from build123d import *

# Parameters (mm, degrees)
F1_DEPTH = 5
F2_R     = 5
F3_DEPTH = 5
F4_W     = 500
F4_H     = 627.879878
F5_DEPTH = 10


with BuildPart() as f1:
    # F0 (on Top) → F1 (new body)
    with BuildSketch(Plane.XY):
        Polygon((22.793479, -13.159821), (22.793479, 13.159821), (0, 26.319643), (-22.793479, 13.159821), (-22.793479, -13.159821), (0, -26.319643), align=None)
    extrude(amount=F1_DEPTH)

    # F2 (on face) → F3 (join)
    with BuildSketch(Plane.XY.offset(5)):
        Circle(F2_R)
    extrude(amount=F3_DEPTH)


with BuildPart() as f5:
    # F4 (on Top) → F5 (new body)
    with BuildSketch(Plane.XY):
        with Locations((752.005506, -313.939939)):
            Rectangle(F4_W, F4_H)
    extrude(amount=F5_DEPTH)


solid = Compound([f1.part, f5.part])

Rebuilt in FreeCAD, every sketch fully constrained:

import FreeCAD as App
import Part
import Sketcher
Q = App.Units.Quantity


def add_polygon(sketch, points):
    """Adds a closed chain of lines whose ends are joined by coincident constraints."""
    first, n = sketch.GeometryCount, len(points)
    for a, b in zip(points, points[1:] + points[:1]):
        sketch.addGeometry(Part.LineSegment(App.Vector(*a, 0), App.Vector(*b, 0)), False)
    for i in range(n):
        sketch.addConstraint(Sketcher.Constraint("Coincident", first + i, 2, first + (i + 1) % n, 1))

doc = App.newDocument("Part")
body = doc.addObject("PartDesign::Body", "Body")

# Sketch on XY plane
sketch1 = body.newObject("Sketcher::SketchObject", "Sketch")
sketch1.AttachmentSupport = (doc.getObject("XY_Plane"), [""])
sketch1.MapMode = "FlatFace"
add_polygon(sketch1, [(23, -13), (23, 13), (0, 26), (-23, 13), (-23, -13), (0, -26)])  # lines 0-5
sketch1.addConstraint([
    Sketcher.Constraint("Vertical", 0),
    Sketcher.Constraint("Vertical", 3),
    Sketcher.Constraint("Symmetric", 0, 2, 3, 2, -1, 1),
    Sketcher.Constraint("Symmetric", 1, 2, 4, 2, -1, 1),
    Sketcher.Constraint("PointOnObject", 1, 2, -2),
    Sketcher.Constraint("Parallel", 2, 5),
    Sketcher.Constraint("Horizontal", 0, 2, 2, 2),
    Sketcher.Constraint("Angle", 1, Q("149.999999 deg")),
    Sketcher.Constraint("DistanceY", 0, 1, 0, 2, 26.319642),
    Sketcher.Constraint("DistanceX", -1, 1, 0, 2, 22.793479),
])
pad1 = body.newObject("PartDesign::Pad", "Pad")
pad1.Profile = sketch1
pad1.Length = 5

# Sketch on XY plane
sketch2 = body.newObject("Sketcher::SketchObject", "Sketch001")
sketch2.AttachmentSupport = (doc.getObject("XY_Plane"), [""])
sketch2.MapMode = "FlatFace"
sketch2.AttachmentOffset = App.Placement(App.Vector(0, 0, 5), App.Rotation())
sketch2.addGeometry(Part.Circle(App.Vector(0, 0, 0), App.Vector(0, 0, 1), 5), False)
sketch2.addConstraint([
    Sketcher.Constraint("Coincident", 0, 3, -1, 1),
    Sketcher.Constraint("Diameter", 0, 10.0),
])
pad2 = body.newObject("PartDesign::Pad", "Pad001")
pad2.Profile = sketch2
pad2.Length = 5
body2 = doc.addObject("PartDesign::Body", "Body001")

# Sketch on XY plane
sketch3 = body2.newObject("Sketcher::SketchObject", "Sketch002")
sketch3.AttachmentSupport = (doc.getObject("XY_Plane001"), [""])
sketch3.MapMode = "FlatFace"
add_polygon(sketch3, [(502, 0), (502, -628), (1002, -628), (1002, 0)])  # lines 0-3
sketch3.addConstraint([
    Sketcher.Constraint("Vertical", 0),
    Sketcher.Constraint("Horizontal", 1),
    Sketcher.Constraint("Vertical", 2),
    Sketcher.Constraint("Horizontal", 3),
    Sketcher.Constraint("PointOnObject", 2, 2, -1),
    Sketcher.Constraint("DistanceX", 1, 1, 1, 2, 500.0),
    Sketcher.Constraint("DistanceY", 0, 2, 0, 1, 627.879878),
    Sketcher.Constraint("DistanceX", -1, 1, 0, 2, 502.005506),
])
pad3 = body2.newObject("PartDesign::Pad", "Pad002")
pad3.Profile = sketch3
pad3.Length = 10

doc.recompute()
